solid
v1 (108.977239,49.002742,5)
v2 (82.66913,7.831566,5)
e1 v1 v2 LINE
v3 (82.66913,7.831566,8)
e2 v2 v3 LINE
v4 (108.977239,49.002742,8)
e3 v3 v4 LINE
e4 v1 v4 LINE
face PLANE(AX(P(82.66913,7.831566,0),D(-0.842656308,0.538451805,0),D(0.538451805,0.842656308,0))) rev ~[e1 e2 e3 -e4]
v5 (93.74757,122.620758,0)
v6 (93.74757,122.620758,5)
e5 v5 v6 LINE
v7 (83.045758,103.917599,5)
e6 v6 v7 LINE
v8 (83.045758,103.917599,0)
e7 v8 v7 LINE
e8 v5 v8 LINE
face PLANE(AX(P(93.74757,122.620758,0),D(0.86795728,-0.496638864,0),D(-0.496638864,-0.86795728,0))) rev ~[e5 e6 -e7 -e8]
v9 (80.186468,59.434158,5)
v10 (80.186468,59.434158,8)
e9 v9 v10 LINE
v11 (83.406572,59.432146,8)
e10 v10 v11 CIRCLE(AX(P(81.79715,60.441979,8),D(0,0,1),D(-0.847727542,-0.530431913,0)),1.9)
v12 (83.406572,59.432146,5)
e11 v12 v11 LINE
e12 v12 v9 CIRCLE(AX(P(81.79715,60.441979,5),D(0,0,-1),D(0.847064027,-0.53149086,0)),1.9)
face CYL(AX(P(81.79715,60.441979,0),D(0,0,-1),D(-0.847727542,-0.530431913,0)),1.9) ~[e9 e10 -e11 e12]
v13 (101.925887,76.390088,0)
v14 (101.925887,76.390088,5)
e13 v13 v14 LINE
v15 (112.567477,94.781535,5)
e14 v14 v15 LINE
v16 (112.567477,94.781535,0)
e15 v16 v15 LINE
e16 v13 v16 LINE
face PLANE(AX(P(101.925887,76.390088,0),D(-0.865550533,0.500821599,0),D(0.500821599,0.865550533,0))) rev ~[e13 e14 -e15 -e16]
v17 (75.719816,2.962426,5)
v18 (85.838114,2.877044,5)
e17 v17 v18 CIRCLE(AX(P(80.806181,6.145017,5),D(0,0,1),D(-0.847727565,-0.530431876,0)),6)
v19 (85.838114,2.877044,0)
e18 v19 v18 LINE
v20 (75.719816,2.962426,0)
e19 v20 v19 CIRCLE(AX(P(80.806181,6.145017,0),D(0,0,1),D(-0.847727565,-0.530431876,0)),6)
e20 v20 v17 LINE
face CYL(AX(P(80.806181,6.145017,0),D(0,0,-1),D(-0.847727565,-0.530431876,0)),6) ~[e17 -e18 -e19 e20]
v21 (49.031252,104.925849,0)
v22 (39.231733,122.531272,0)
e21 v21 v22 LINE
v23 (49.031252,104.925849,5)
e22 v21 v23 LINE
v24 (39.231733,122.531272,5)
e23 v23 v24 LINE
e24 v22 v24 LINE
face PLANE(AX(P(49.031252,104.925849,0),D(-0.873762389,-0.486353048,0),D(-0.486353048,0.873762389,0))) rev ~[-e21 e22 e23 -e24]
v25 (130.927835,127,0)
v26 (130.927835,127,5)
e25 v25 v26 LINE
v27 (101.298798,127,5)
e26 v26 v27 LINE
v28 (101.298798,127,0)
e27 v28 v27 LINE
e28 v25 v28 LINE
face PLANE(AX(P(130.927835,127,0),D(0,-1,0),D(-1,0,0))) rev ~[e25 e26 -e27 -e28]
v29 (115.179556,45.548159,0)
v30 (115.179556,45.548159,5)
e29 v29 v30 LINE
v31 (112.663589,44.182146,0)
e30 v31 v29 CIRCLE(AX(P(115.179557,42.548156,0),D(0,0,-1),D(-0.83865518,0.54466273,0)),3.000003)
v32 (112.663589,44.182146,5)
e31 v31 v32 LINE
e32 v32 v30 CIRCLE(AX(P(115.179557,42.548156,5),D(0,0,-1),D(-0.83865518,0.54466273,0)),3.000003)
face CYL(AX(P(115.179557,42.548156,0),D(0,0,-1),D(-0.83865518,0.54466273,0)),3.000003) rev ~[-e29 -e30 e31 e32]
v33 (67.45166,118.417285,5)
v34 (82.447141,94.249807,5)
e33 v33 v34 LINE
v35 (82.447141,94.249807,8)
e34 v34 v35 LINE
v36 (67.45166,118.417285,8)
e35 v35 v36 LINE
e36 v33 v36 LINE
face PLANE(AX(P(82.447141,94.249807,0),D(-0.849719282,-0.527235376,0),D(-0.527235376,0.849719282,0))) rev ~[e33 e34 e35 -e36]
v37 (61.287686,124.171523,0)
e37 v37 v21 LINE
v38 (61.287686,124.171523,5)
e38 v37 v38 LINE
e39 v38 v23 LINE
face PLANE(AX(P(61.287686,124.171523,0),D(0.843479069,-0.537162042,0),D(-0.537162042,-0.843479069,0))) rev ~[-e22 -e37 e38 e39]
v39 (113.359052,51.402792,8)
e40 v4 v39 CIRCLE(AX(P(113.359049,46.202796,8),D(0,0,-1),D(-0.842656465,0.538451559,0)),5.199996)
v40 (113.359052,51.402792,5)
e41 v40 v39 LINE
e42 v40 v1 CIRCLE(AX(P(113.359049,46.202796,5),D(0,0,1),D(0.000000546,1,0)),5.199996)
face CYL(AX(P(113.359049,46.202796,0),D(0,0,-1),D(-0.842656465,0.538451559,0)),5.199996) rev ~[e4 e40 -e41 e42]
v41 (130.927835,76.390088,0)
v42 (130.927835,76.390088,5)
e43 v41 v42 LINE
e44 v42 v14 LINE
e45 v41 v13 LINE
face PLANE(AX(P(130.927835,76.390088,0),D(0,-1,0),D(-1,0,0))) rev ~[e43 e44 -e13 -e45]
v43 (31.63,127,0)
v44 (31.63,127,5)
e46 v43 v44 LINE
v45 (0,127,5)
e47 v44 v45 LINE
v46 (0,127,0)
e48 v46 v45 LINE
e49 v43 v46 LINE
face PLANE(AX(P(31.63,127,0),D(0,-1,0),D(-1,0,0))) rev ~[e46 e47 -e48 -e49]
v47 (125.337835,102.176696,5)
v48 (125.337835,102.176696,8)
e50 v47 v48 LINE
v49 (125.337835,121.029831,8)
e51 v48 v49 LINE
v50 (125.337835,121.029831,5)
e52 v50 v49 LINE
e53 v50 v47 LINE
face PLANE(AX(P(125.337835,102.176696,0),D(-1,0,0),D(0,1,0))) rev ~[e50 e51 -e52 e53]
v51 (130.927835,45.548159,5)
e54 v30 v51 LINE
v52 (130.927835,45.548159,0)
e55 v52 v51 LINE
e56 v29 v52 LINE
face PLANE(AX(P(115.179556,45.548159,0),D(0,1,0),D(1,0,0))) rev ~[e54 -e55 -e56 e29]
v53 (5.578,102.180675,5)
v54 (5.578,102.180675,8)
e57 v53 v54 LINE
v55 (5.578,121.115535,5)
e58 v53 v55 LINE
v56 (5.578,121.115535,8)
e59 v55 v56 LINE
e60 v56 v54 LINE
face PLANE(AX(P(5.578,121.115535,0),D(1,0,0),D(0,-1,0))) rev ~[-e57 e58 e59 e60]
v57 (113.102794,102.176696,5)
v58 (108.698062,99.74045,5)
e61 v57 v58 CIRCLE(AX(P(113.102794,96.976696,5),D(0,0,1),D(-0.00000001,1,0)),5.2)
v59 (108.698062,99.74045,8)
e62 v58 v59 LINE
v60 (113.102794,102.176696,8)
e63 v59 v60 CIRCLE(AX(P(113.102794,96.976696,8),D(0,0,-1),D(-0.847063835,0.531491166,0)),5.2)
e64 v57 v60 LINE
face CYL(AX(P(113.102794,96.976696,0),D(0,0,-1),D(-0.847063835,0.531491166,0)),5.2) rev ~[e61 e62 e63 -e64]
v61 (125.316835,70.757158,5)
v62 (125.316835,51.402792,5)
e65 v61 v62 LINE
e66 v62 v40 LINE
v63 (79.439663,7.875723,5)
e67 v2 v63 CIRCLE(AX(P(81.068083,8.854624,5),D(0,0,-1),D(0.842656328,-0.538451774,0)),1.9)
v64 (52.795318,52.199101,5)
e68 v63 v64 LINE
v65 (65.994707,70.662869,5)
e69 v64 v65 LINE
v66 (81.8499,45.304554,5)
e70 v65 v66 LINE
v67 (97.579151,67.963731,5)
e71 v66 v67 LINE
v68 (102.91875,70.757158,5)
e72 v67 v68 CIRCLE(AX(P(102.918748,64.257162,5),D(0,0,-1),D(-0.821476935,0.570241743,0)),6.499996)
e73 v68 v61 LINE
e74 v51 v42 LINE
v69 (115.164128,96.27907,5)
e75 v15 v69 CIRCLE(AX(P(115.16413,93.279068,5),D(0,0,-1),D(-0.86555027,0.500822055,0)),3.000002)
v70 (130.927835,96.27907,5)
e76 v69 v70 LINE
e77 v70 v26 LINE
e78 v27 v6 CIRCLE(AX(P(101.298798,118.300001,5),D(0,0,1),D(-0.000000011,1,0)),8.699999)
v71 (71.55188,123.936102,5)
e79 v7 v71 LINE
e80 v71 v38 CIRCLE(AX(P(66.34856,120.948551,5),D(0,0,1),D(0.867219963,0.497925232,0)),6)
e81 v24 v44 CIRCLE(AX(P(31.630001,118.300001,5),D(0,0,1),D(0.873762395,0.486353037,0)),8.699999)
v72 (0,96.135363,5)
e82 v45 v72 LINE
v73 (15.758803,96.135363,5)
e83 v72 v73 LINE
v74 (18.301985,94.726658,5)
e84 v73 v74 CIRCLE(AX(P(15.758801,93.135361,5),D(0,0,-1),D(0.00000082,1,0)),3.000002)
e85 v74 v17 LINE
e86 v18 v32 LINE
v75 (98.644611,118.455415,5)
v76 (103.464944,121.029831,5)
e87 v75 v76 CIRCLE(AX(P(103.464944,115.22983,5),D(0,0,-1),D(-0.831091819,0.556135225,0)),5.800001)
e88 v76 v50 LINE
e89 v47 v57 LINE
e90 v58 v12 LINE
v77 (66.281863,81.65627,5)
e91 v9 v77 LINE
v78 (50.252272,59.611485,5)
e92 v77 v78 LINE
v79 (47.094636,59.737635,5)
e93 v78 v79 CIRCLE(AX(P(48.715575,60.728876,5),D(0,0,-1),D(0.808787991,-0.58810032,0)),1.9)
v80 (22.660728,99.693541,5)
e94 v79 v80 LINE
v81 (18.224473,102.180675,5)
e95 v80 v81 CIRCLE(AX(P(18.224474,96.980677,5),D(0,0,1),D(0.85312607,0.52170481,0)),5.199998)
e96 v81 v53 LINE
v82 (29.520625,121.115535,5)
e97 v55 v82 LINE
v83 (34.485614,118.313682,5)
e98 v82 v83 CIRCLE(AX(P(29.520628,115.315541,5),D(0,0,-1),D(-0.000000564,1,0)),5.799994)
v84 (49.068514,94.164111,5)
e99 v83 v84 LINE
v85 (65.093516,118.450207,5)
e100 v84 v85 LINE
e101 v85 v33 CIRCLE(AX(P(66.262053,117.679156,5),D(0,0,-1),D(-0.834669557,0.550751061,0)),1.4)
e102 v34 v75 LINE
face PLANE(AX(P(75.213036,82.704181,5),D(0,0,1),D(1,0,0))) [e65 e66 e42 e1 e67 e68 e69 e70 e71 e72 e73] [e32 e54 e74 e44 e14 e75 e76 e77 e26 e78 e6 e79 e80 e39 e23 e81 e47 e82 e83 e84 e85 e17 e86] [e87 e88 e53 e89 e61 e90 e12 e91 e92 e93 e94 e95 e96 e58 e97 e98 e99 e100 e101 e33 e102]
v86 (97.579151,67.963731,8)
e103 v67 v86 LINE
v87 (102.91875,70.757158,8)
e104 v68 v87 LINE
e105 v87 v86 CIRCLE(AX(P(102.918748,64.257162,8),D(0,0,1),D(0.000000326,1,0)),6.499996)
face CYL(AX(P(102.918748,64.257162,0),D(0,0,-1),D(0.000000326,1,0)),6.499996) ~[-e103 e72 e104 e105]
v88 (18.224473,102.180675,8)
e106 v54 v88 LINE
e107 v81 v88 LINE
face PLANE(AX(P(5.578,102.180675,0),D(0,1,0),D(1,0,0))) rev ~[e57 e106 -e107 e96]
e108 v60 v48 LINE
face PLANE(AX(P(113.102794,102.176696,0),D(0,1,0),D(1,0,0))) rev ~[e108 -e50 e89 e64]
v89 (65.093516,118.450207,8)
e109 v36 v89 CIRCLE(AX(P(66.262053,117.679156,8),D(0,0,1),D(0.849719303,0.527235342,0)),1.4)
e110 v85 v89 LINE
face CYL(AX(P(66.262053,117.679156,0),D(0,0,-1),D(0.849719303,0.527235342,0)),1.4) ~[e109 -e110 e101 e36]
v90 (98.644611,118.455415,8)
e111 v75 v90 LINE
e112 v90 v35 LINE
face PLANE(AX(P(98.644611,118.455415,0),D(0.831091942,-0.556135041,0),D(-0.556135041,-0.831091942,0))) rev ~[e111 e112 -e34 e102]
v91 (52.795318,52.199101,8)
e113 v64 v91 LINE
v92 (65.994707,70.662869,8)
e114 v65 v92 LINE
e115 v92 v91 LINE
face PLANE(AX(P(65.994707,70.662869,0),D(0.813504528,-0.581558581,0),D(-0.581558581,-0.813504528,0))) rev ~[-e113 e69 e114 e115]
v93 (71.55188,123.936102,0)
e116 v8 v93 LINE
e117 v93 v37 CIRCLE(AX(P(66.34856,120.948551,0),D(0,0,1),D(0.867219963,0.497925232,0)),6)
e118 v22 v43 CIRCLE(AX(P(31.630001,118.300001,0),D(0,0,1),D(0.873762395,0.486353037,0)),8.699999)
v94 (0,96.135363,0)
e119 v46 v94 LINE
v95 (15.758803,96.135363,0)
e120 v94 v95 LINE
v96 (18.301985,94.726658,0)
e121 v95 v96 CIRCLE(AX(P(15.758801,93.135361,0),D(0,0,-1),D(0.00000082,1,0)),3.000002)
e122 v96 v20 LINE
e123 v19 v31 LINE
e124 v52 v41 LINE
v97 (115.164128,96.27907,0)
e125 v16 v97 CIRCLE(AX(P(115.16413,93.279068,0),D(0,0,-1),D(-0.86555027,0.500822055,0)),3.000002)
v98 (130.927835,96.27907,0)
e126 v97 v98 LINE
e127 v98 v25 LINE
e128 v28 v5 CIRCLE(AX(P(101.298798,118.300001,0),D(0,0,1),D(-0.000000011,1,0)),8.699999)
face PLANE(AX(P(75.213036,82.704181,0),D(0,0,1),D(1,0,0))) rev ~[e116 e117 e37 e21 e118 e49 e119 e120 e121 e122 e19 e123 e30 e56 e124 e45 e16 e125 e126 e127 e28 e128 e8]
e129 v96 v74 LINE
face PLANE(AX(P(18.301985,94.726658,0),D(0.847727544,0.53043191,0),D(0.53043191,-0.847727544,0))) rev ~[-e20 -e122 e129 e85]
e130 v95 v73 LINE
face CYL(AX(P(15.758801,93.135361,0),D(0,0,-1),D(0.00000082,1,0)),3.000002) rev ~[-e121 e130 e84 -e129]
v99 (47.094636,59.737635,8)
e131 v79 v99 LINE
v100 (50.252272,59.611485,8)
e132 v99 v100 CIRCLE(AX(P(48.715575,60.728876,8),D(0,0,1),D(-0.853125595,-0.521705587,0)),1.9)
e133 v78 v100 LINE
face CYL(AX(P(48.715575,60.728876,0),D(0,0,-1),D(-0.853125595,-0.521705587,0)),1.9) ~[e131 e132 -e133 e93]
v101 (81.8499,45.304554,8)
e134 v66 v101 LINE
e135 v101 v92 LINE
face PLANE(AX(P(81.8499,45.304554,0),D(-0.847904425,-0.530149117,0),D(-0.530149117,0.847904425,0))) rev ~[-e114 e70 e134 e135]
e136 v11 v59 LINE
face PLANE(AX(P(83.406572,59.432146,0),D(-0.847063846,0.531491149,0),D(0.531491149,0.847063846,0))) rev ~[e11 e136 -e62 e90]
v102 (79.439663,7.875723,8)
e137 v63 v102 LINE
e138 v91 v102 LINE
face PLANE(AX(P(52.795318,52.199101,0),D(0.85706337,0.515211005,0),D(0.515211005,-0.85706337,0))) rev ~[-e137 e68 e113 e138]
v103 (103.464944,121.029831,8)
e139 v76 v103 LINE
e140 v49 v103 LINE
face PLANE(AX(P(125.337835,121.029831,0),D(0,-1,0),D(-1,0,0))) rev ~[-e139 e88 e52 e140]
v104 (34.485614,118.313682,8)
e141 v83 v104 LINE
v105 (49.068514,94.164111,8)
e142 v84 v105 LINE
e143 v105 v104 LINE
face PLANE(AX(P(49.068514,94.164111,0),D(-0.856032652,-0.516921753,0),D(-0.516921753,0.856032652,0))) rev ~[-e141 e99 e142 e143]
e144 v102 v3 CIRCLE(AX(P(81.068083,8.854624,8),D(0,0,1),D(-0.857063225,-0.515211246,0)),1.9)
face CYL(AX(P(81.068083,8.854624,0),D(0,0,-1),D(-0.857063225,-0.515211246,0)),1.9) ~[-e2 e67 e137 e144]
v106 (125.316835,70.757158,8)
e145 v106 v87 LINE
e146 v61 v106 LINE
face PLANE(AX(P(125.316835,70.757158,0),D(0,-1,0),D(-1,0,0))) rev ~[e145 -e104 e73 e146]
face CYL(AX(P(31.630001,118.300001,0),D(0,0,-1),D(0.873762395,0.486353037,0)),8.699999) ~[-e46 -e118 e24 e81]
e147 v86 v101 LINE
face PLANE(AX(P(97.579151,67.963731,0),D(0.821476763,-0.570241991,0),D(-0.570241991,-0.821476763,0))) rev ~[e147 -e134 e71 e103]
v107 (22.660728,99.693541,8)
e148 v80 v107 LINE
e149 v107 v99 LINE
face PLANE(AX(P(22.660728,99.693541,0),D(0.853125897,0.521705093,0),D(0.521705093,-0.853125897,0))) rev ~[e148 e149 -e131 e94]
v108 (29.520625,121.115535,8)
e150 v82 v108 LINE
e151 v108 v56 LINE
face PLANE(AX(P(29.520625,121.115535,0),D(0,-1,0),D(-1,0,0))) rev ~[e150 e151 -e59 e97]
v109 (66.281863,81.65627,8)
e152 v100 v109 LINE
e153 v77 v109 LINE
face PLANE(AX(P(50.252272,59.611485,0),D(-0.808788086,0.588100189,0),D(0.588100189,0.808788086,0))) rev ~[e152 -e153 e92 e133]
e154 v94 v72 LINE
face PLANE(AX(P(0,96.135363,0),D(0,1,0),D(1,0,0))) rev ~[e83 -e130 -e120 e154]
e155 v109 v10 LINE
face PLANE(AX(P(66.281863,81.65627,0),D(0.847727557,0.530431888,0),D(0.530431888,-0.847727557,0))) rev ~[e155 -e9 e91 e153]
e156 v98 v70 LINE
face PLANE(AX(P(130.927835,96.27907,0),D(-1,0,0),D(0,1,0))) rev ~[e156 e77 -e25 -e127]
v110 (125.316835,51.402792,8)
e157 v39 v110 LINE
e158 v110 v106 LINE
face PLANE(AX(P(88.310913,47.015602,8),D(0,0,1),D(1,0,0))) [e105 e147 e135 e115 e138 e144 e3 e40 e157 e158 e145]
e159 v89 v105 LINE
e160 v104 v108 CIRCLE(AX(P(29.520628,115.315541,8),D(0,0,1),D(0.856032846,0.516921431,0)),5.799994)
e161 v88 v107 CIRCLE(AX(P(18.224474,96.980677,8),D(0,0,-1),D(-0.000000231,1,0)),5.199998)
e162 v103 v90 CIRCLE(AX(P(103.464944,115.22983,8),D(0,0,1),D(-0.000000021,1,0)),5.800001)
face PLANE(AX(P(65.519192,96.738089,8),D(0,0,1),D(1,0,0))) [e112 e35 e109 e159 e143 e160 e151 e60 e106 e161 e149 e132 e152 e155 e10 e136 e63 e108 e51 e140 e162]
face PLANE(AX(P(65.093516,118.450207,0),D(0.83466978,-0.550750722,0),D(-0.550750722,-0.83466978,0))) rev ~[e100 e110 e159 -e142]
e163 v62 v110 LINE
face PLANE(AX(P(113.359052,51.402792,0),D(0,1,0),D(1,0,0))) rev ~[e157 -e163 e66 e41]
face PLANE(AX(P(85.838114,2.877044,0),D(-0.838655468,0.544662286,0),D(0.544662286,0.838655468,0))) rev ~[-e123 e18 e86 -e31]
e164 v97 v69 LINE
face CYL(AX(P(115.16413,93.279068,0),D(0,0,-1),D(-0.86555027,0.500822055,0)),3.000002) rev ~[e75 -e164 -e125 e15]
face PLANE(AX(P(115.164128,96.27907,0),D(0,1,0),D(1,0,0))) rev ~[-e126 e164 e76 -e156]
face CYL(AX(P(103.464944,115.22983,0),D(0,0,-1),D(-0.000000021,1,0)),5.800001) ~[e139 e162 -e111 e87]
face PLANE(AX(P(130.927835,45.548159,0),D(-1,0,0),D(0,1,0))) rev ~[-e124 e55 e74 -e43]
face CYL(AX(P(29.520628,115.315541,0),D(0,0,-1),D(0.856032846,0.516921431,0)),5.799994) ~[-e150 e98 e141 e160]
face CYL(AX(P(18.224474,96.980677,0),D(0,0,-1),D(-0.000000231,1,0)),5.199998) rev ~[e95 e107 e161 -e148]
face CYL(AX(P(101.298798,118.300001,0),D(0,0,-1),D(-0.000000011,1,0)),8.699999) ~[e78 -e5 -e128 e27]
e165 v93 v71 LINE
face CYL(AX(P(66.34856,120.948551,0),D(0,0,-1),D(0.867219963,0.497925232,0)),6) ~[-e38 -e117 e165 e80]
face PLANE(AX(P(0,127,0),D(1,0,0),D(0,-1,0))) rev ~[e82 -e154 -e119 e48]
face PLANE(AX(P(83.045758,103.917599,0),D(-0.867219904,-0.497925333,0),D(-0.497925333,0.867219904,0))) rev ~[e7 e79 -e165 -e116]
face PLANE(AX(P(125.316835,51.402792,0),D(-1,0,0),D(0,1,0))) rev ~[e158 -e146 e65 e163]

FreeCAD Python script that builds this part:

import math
import FreeCAD as App
import Part
import Sketcher
from FreeCAD import Vector

doc = App.newDocument("Part")
params = doc.addObject("Spreadsheet::Sheet", "Params")
for row, (alias, value) in enumerate([
    ("sketch1_radius", "6 mm"),
    ("sketch1_radius2", "6 mm"),
    ("sketch1_radius3", "8.699999 mm"),
    ("sketch1_radius4", "8.699999 mm"),
    ("sketch1_radius5", "1.9 mm"),
    ("pad1_length", "5 mm"),
    ("sketch2_radius", "1.9 mm"),
    ("sketch2_radius2", "1.9 mm"),
    ("sketch2_radius3", "5.2 mm"),
    ("sketch2_radius4", "5.800001 mm"),
    ("sketch2_radius5", "1.4 mm"),
    ("pad2_length", "8 mm"),
], start=1):
    params.set(f"A{row}", alias)
    params.set(f"B{row}", "=" + value)
    params.setAlias(f"B{row}", alias)

body = doc.addObject("PartDesign::Body", "Body")

sketch1 = body.newObject("Sketcher::SketchObject", "Sketch")
sketch1.AttachmentSupport = (doc.getObject("XY_Plane"), [""])
sketch1.MapMode = "FlatFace"
sketch1.addGeometry(Part.LineSegment(Vector(130.927835, 96.27907, 0), Vector(130.927835, 127, 0)), False)
sketch1.addGeometry(Part.LineSegment(Vector(130.927835, 127, 0), Vector(101.298798, 127, 0)), False)
sketch1.addGeometry(Part.ArcOfCircle(Part.Circle(Vector(101.298798, 118.300001, 0), Vector(0, 0, 1), 8.699999), math.radians(90.000001), math.radians(150.222126)), False)
sketch1.addGeometry(Part.LineSegment(Vector(93.74757, 122.620758, 0), Vector(83.045758, 103.917599, 0)), False)
sketch1.addGeometry(Part.LineSegment(Vector(83.045758, 103.917599, 0), Vector(71.55188, 123.936102, 0)), False)
sketch1.addGeometry(Part.ArcOfCircle(Part.Circle(Vector(66.34856, 120.948551, 0), Vector(0, 0, 1), 6), math.radians(29.862829), math.radians(147.509343)), False)
sketch1.addGeometry(Part.LineSegment(Vector(61.287686, 124.171523, 0), Vector(49.031252, 104.925849, 0)), False)
sketch1.addGeometry(Part.LineSegment(Vector(49.031252, 104.925849, 0), Vector(39.231733, 122.531272, 0)), False)
sketch1.addGeometry(Part.ArcOfCircle(Part.Circle(Vector(31.630001, 118.300001, 0), Vector(0, 0, 1), 8.699999), math.radians(29.101158), math.radians(90.000008)), False)
sketch1.addGeometry(Part.LineSegment(Vector(31.63, 127, 0), Vector(0, 127, 0)), False)
sketch1.addGeometry(Part.LineSegment(Vector(0, 127, 0), Vector(0, 96.135363, 0)), False)
sketch1.addGeometry(Part.LineSegment(Vector(0, 96.135363, 0), Vector(15.758803, 96.135363, 0)), False)
sketch1.addGeometry(Part.ArcOfCircle(Part.Circle(Vector(15.758801, 93.135361, 0), Vector(0, 0, 1), 3.000002), math.radians(32.034652), math.radians(89.999953)), False)
sketch1.addGeometry(Part.LineSegment(Vector(18.301985, 94.726658, 0), Vector(75.719816, 2.962426, 0)), False)
sketch1.addGeometry(Part.ArcOfCircle(Part.Circle(Vector(80.806181, 6.145017, 0), Vector(0, 0, 1), 6), math.radians(-147.96536), math.radians(-33.001583)), False)
sketch1.addGeometry(Part.LineSegment(Vector(85.838114, 2.877044, 0), Vector(112.663589, 44.182146, 0)), False)
sketch1.addGeometry(Part.ArcOfCircle(Part.Circle(Vector(115.179557, 42.548156, 0), Vector(0, 0, 1), 3.000003), math.radians(90.000014), math.radians(146.998381)), False)
sketch1.addGeometry(Part.LineSegment(Vector(115.179556, 45.548159, 0), Vector(130.927835, 45.548159, 0)), False)
sketch1.addGeometry(Part.LineSegment(Vector(130.927835, 45.548159, 0), Vector(130.927835, 76.390088, 0)), False)
sketch1.addGeometry(Part.LineSegment(Vector(130.927835, 76.390088, 0), Vector(101.925887, 76.390088, 0)), False)
sketch1.addGeometry(Part.LineSegment(Vector(101.925887, 76.390088, 0), Vector(112.567477, 94.781535, 0)), False)
sketch1.addGeometry(Part.ArcOfCircle(Part.Circle(Vector(115.16413, 93.279068, 0), Vector(0, 0, 1), 3.000002), math.radians(90.000035), math.radians(149.945598)), False)
sketch1.addGeometry(Part.LineSegment(Vector(115.164128, 96.27907, 0), Vector(130.927835, 96.27907, 0)), False)
sketch1.addGeometry(Part.LineSegment(Vector(102.91875, 70.757158, 0), Vector(125.316835, 70.757158, 0)), False)
sketch1.addGeometry(Part.LineSegment(Vector(125.316835, 70.757158, 0), Vector(125.316835, 51.402792, 0)), False)
sketch1.addGeometry(Part.LineSegment(Vector(125.316835, 51.402792, 0), Vector(113.359052, 51.402792, 0)), False)
sketch1.addGeometry(Part.ArcOfCircle(Part.Circle(Vector(113.359049, 46.202796, 0), Vector(0, 0, 1), 5.199996), math.radians(89.999969), math.radians(147.421708)), False)
sketch1.addGeometry(Part.LineSegment(Vector(108.977239, 49.002742, 0), Vector(82.66913, 7.831566, 0)), False)
sketch1.addGeometry(Part.ArcOfCircle(Part.Circle(Vector(81.068083, 8.854624, 0), Vector(0, 0, 1), 1.9), math.radians(-148.988424), math.radians(-32.578306)), False)
sketch1.addGeometry(Part.LineSegment(Vector(79.439663, 7.875723, 0), Vector(52.795318, 52.199101, 0)), False)
sketch1.addGeometry(Part.LineSegment(Vector(52.795318, 52.199101, 0), Vector(65.994707, 70.662869, 0)), False)
sketch1.addGeometry(Part.LineSegment(Vector(65.994707, 70.662869, 0), Vector(81.8499, 45.304554, 0)), False)
sketch1.addGeometry(Part.LineSegment(Vector(81.8499, 45.304554, 0), Vector(97.579151, 67.963731, 0)), False)
sketch1.addGeometry(Part.ArcOfCircle(Part.Circle(Vector(102.918748, 64.257162, 0), Vector(0, 0, 1), 6.499996), math.radians(89.999981), math.radians(145.232915)), False)
sketch1.addGeometry(Part.LineSegment(Vector(18.224473, 102.180675, 0), Vector(5.578, 102.180675, 0)), False)
sketch1.addGeometry(Part.LineSegment(Vector(5.578, 102.180675, 0), Vector(5.578, 121.115535, 0)), False)
sketch1.addGeometry(Part.LineSegment(Vector(5.578, 121.115535, 0), Vector(29.520625, 121.115535, 0)), False)
sketch1.addGeometry(Part.ArcOfCircle(Part.Circle(Vector(29.520628, 115.315541, 0), Vector(0, 0, 1), 5.799994), math.radians(31.125973), math.radians(90.000032)), False)
sketch1.addGeometry(Part.LineSegment(Vector(34.485614, 118.313682, 0), Vector(49.068514, 94.164111, 0)), False)
sketch1.addGeometry(Part.LineSegment(Vector(49.068514, 94.164111, 0), Vector(65.093516, 118.450207, 0)), False)
sketch1.addGeometry(Part.ArcOfCircle(Part.Circle(Vector(66.262053, 117.679156, 0), Vector(0, 0, 1), 1.4), math.radians(31.818848), math.radians(146.581446)), False)
sketch1.addGeometry(Part.LineSegment(Vector(67.45166, 118.417285, 0), Vector(82.447141, 94.249807, 0)), False)
sketch1.addGeometry(Part.LineSegment(Vector(82.447141, 94.249807, 0), Vector(98.644611, 118.455415, 0)), False)
sketch1.addGeometry(Part.ArcOfCircle(Part.Circle(Vector(103.464944, 115.22983, 0), Vector(0, 0, 1), 5.800001), math.radians(90.000001), math.radians(146.211058)), False)
sketch1.addGeometry(Part.LineSegment(Vector(103.464944, 121.029831, 0), Vector(125.337835, 121.029831, 0)), False)
sketch1.addGeometry(Part.LineSegment(Vector(125.337835, 121.029831, 0), Vector(125.337835, 102.176696, 0)), False)
sketch1.addGeometry(Part.LineSegment(Vector(125.337835, 102.176696, 0), Vector(113.102794, 102.176696, 0)), False)
sketch1.addGeometry(Part.ArcOfCircle(Part.Circle(Vector(113.102794, 96.976696, 0), Vector(0, 0, 1), 5.2), math.radians(90.000001), math.radians(147.893738)), False)
sketch1.addGeometry(Part.LineSegment(Vector(108.698062, 99.74045, 0), Vector(83.406572, 59.432146, 0)), False)
sketch1.addGeometry(Part.ArcOfCircle(Part.Circle(Vector(81.79715, 60.441979, 0), Vector(0, 0, 1), 1.9), math.radians(-147.965358), math.radians(-32.106242)), False)
sketch1.addGeometry(Part.LineSegment(Vector(80.186468, 59.434158, 0), Vector(66.281863, 81.65627, 0)), False)
sketch1.addGeometry(Part.LineSegment(Vector(66.281863, 81.65627, 0), Vector(50.252272, 59.611485, 0)), False)
sketch1.addGeometry(Part.ArcOfCircle(Part.Circle(Vector(48.715575, 60.728876, 0), Vector(0, 0, 1), 1.9), math.radians(-148.553271), math.radians(-36.022317)), False)
sketch1.addGeometry(Part.LineSegment(Vector(47.094636, 59.737635, 0), Vector(22.660728, 99.693541, 0)), False)
sketch1.addGeometry(Part.ArcOfCircle(Part.Circle(Vector(18.224474, 96.980677, 0), Vector(0, 0, 1), 5.199998), math.radians(31.446676), math.radians(90.000013)), False)
sketch1.addConstraint(Sketcher.Constraint("Coincident", 0, 2, 1, 1))
sketch1.addConstraint(Sketcher.Constraint("Coincident", 1, 2, 2, 1))
sketch1.addConstraint(Sketcher.Constraint("Coincident", 2, 2, 3, 1))
sketch1.addConstraint(Sketcher.Constraint("Coincident", 3, 2, 4, 1))
sketch1.addConstraint(Sketcher.Constraint("Coincident", 4, 2, 5, 1))
sketch1.addConstraint(Sketcher.Constraint("Coincident", 5, 2, 6, 1))
sketch1.addConstraint(Sketcher.Constraint("Coincident", 6, 2, 7, 1))
sketch1.addConstraint(Sketcher.Constraint("Coincident", 7, 2, 8, 1))
sketch1.addConstraint(Sketcher.Constraint("Coincident", 8, 2, 9, 1))
sketch1.addConstraint(Sketcher.Constraint("Coincident", 9, 2, 10, 1))
sketch1.addConstraint(Sketcher.Constraint("Coincident", 10, 2, 11, 1))
sketch1.addConstraint(Sketcher.Constraint("Coincident", 11, 2, 12, 2))
sketch1.addConstraint(Sketcher.Constraint("Coincident", 12, 1, 13, 1))
sketch1.addConstraint(Sketcher.Constraint("Coincident", 13, 2, 14, 1))
sketch1.addConstraint(Sketcher.Constraint("Coincident", 14, 2, 15, 1))
sketch1.addConstraint(Sketcher.Constraint("Coincident", 15, 2, 16, 2))
sketch1.addConstraint(Sketcher.Constraint("Coincident", 16, 1, 17, 1))
sketch1.addConstraint(Sketcher.Constraint("Coincident", 17, 2, 18, 1))
sketch1.addConstraint(Sketcher.Constraint("Coincident", 18, 2, 19, 1))
sketch1.addConstraint(Sketcher.Constraint("Coincident", 19, 2, 20, 1))
sketch1.addConstraint(Sketcher.Constraint("Coincident", 20, 2, 21, 2))
sketch1.addConstraint(Sketcher.Constraint("Coincident", 21, 1, 22, 1))
sketch1.addConstraint(Sketcher.Constraint("Coincident", 22, 2, 0, 1))
sketch1.addConstraint(Sketcher.Constraint("Coincident", 23, 2, 24, 1))
sketch1.addConstraint(Sketcher.Constraint("Coincident", 24, 2, 25, 1))
sketch1.addConstraint(Sketcher.Constraint("Coincident", 25, 2, 26, 1))
sketch1.addConstraint(Sketcher.Constraint("Coincident", 26, 2, 27, 1))
sketch1.addConstraint(Sketcher.Constraint("Coincident", 27, 2, 28, 2))
sketch1.addConstraint(Sketcher.Constraint("Coincident", 28, 1, 29, 1))
sketch1.addConstraint(Sketcher.Constraint("Coincident", 29, 2, 30, 1))
sketch1.addConstraint(Sketcher.Constraint("Coincident", 30, 2, 31, 1))
sketch1.addConstraint(Sketcher.Constraint("Coincident", 31, 2, 32, 1))
sketch1.addConstraint(Sketcher.Constraint("Coincident", 32, 2, 33, 2))
sketch1.addConstraint(Sketcher.Constraint("Coincident", 33, 1, 23, 1))
sketch1.addConstraint(Sketcher.Constraint("Coincident", 34, 2, 35, 1))
sketch1.addConstraint(Sketcher.Constraint("Coincident", 35, 2, 36, 1))
sketch1.addConstraint(Sketcher.Constraint("Coincident", 36, 2, 37, 2))
sketch1.addConstraint(Sketcher.Constraint("Coincident", 37, 1, 38, 1))
sketch1.addConstraint(Sketcher.Constraint("Coincident", 38, 2, 39, 1))
sketch1.addConstraint(Sketcher.Constraint("Coincident", 39, 2, 40, 2))
sketch1.addConstraint(Sketcher.Constraint("Coincident", 40, 1, 41, 1))
sketch1.addConstraint(Sketcher.Constraint("Coincident", 41, 2, 42, 1))
sketch1.addConstraint(Sketcher.Constraint("Coincident", 42, 2, 43, 2))
sketch1.addConstraint(Sketcher.Constraint("Coincident", 43, 1, 44, 1))
sketch1.addConstraint(Sketcher.Constraint("Coincident", 44, 2, 45, 1))
sketch1.addConstraint(Sketcher.Constraint("Coincident", 45, 2, 46, 1))
sketch1.addConstraint(Sketcher.Constraint("Coincident", 46, 2, 47, 1))
sketch1.addConstraint(Sketcher.Constraint("Coincident", 47, 2, 48, 1))
sketch1.addConstraint(Sketcher.Constraint("Coincident", 48, 2, 49, 2))
sketch1.addConstraint(Sketcher.Constraint("Coincident", 49, 1, 50, 1))
sketch1.addConstraint(Sketcher.Constraint("Coincident", 50, 2, 51, 1))
sketch1.addConstraint(Sketcher.Constraint("Coincident", 51, 2, 52, 2))
sketch1.addConstraint(Sketcher.Constraint("Coincident", 52, 1, 53, 1))
sketch1.addConstraint(Sketcher.Constraint("Coincident", 53, 2, 54, 1))
sketch1.addConstraint(Sketcher.Constraint("Coincident", 54, 2, 34, 1))
sketch1.addConstraint(Sketcher.Constraint("Vertical", 0))
sketch1.addConstraint(Sketcher.Constraint("Horizontal", 1))
sketch1.addConstraint(Sketcher.Constraint("Horizontal", 9))
sketch1.addConstraint(Sketcher.Constraint("Vertical", 10))
sketch1.addConstraint(Sketcher.Constraint("Horizontal", 11))
sketch1.addConstraint(Sketcher.Constraint("Horizontal", 17))
sketch1.addConstraint(Sketcher.Constraint("Vertical", 18))
sketch1.addConstraint(Sketcher.Constraint("Horizontal", 19))
sketch1.addConstraint(Sketcher.Constraint("Horizontal", 22))
sketch1.addConstraint(Sketcher.Constraint("Horizontal", 23))
sketch1.addConstraint(Sketcher.Constraint("Vertical", 24))
sketch1.addConstraint(Sketcher.Constraint("Horizontal", 25))
sketch1.addConstraint(Sketcher.Constraint("Horizontal", 34))
sketch1.addConstraint(Sketcher.Constraint("Vertical", 35))
sketch1.addConstraint(Sketcher.Constraint("Horizontal", 36))
sketch1.addConstraint(Sketcher.Constraint("Horizontal", 44))
sketch1.addConstraint(Sketcher.Constraint("Vertical", 45))
sketch1.addConstraint(Sketcher.Constraint("Horizontal", 46))
sketch1.addConstraint(Sketcher.Constraint("PointOnObject", 9, 2, -2))
sketch1.addConstraint(Sketcher.Constraint("Radius", 5, 6.0))
sketch1.addConstraint(Sketcher.Constraint("Radius", 14, 6.0))
sketch1.addConstraint(Sketcher.Constraint("Radius", 2, 8.699999))
sketch1.addConstraint(Sketcher.Constraint("Radius", 8, 8.699999))
sketch1.addConstraint(Sketcher.Constraint("Radius", 28, 1.9))
sketch1.addConstraint(Sketcher.Constraint("Radius", 40, 1.4))
sketch1.addConstraint(Sketcher.Constraint("Radius", 43, 5.800001))
sketch1.addConstraint(Sketcher.Constraint("Radius", 47, 5.2))
sketch1.addConstraint(Sketcher.Constraint("Radius", 49, 1.9))
sketch1.addConstraint(Sketcher.Constraint("Radius", 52, 1.9))
sketch1.addConstraint(Sketcher.Constraint("DistanceY", -1, 1, 0, 2, 127.0))
sketch1.addConstraint(Sketcher.Constraint("DistanceY", -1, 1, 8, 2, 127.0))
sketch1.addConstraint(Sketcher.Constraint("DistanceX", 9, 2, 9, 1, 31.63))
sketch1.addConstraint(Sketcher.Constraint("DistanceX", -1, 1, 8, 3, 31.630001))
sketch1.addConstraint(Sketcher.Constraint("DistanceX", -1, 1, 34, 2, 5.578))
sketch1.addConstraint(Sketcher.Constraint("Radius", 12, 3.000002))
sketch1.addConstraint(Sketcher.Constraint("Radius", 16, 3.000003))
sketch1.addConstraint(Sketcher.Constraint("Radius", 21, 3.000002))
sketch1.addConstraint(Sketcher.Constraint("Radius", 26, 5.199996))
sketch1.addConstraint(Sketcher.Constraint("Radius", 33, 6.499996))
sketch1.addConstraint(Sketcher.Constraint("Radius", 37, 5.799994))
sketch1.addConstraint(Sketcher.Constraint("Radius", 54, 5.199998))
sketch1.addConstraint(Sketcher.Constraint("Distance", 27, 48.8588))
sketch1.addConstraint(Sketcher.Constraint("DistanceX", 17, 1, 17, 2, 15.748279))
sketch1.addConstraint(Sketcher.Constraint("DistanceX", 44, 1, 44, 2, 21.872891))
sketch1.addConstraint(Sketcher.Constraint("DistanceX", 46, 2, 46, 1, 12.235041))
sketch1.addConstraint(Sketcher.Constraint("DistanceY", 0, 1, 0, 2, 30.72093))
sketch1.addConstraint(Sketcher.Constraint("DistanceY", 18, 1, 18, 2, 30.841929))
sketch1.addConstraint(Sketcher.Constraint("DistanceY", 35, 1, 35, 2, 18.93486))
sketch1.addConstraint(Sketcher.Constraint("DistanceX", -1, 1, 2, 3, 101.298798))
sketch1.addConstraint(Sketcher.Constraint("DistanceX", -1, 1, 12, 3, 15.758801))
sketch1.addConstraint(Sketcher.Constraint("DistanceX", -1, 1, 1, 2, 101.298798))
sketch1.addConstraint(Sketcher.Constraint("DistanceY", -1, 1, 3, 2, 103.917599))
sketch1.addConstraint(Sketcher.Constraint("DistanceY", -1, 1, 29, 2, 52.199101))
sketch1.addConstraint(Sketcher.Constraint("DistanceX", -1, 1, 31, 2, 81.8499))
sketch1.addConstraint(Sketcher.Constraint("Distance", 3, 21.548479))
sketch1.addConstraint(Sketcher.Constraint("Distance", 38, 28.21104))
sketch1.addConstraint(Sketcher.Constraint("Distance", 39, 29.096652))
sketch1.addConstraint(Sketcher.Constraint("Distance", 41, 28.44172))
sketch1.addConstraint(Sketcher.Constraint("Distance", 48, 47.58591))
sketch1.addConstraint(Sketcher.Constraint("DistanceX", 1, 2, 1, 1, 29.629037))
sketch1.addConstraint(Sketcher.Constraint("DistanceX", 11, 1, 11, 2, 15.758803))
sketch1.addConstraint(Sketcher.Constraint("DistanceX", 19, 2, 19, 1, 29.001948))
sketch1.addConstraint(Sketcher.Constraint("DistanceX", 22, 1, 22, 2, 15.763707))
sketch1.addConstraint(Sketcher.Constraint("DistanceX", 23, 1, 23, 2, 22.398085))
sketch1.addConstraint(Sketcher.Constraint("DistanceX", 25, 2, 25, 1, 11.957783))
sketch1.addConstraint(Sketcher.Constraint("DistanceX", 34, 2, 34, 1, 12.646473))
sketch1.addConstraint(Sketcher.Constraint("DistanceX", 36, 1, 36, 2, 23.942625))
sketch1.addConstraint(Sketcher.Constraint("DistanceY", 10, 2, 10, 1, 30.864637))
sketch1.addConstraint(Sketcher.Constraint("DistanceY", 24, 2, 24, 1, 19.354366))
sketch1.addConstraint(Sketcher.Constraint("DistanceY", 45, 2, 45, 1, 18.853135))
sketch1.addConstraint(Sketcher.Constraint("DistanceX", -1, 1, 5, 3, 66.34856))
sketch1.addConstraint(Sketcher.Constraint("DistanceY", -1, 1, 5, 3, 120.948551))
sketch1.addConstraint(Sketcher.Constraint("DistanceX", -1, 1, 14, 3, 80.806181))
sketch1.addConstraint(Sketcher.Constraint("DistanceX", -1, 1, 21, 3, 115.16413))
sketch1.addConstraint(Sketcher.Constraint("DistanceX", -1, 1, 26, 3, 113.359049))
sketch1.addConstraint(Sketcher.Constraint("DistanceY", -1, 1, 33, 3, 64.257162))
sketch1.addConstraint(Sketcher.Constraint("DistanceX", -1, 1, 37, 3, 29.520628))
sketch1.addConstraint(Sketcher.Constraint("DistanceY", -1, 1, 37, 3, 115.315541))
sketch1.addConstraint(Sketcher.Constraint("DistanceY", -1, 1, 43, 3, 115.22983))
sketch1.addConstraint(Sketcher.Constraint("DistanceX", -1, 1, 49, 3, 81.79715))
sketch1.addConstraint(Sketcher.Constraint("DistanceY", -1, 1, 49, 3, 60.441979))
sketch1.addConstraint(Sketcher.Constraint("DistanceX", -1, 1, 2, 2, 93.74757))
sketch1.addConstraint(Sketcher.Constraint("DistanceX", -1, 1, 4, 2, 71.55188))
sketch1.addConstraint(Sketcher.Constraint("DistanceY", -1, 1, 6, 2, 104.925849))
sketch1.addConstraint(Sketcher.Constraint("DistanceY", -1, 1, 7, 2, 122.531272))
sketch1.addConstraint(Sketcher.Constraint("DistanceY", -1, 1, 12, 1, 94.726658))
sketch1.addConstraint(Sketcher.Constraint("DistanceX", -1, 1, 15, 2, 112.663589))
sketch1.addConstraint(Sketcher.Constraint("DistanceY", -1, 1, 16, 1, 45.548159))
sketch1.addConstraint(Sketcher.Constraint("DistanceX", -1, 1, 26, 2, 108.977239))
sketch1.addConstraint(Sketcher.Constraint("DistanceX", -1, 1, 27, 2, 82.66913))
sketch1.addConstraint(Sketcher.Constraint("DistanceX", -1, 1, 29, 2, 52.795318))
sketch1.addConstraint(Sketcher.Constraint("DistanceY", -1, 1, 30, 2, 70.662869))
sketch1.addConstraint(Sketcher.Constraint("DistanceX", -1, 1, 32, 2, 97.579151))
sketch1.addConstraint(Sketcher.Constraint("DistanceY", -1, 1, 32, 2, 67.963731))
sketch1.addConstraint(Sketcher.Constraint("DistanceX", -1, 1, 33, 1, 102.91875))
sketch1.addConstraint(Sketcher.Constraint("DistanceY", -1, 1, 38, 2, 94.164111))
sketch1.addConstraint(Sketcher.Constraint("DistanceX", -1, 1, 40, 1, 67.45166))
sketch1.addConstraint(Sketcher.Constraint("DistanceX", -1, 1, 41, 2, 82.447141))
sketch1.addConstraint(Sketcher.Constraint("DistanceX", -1, 1, 42, 2, 98.644611))
sketch1.addConstraint(Sketcher.Constraint("DistanceY", -1, 1, 47, 2, 99.74045))
sketch1.addConstraint(Sketcher.Constraint("DistanceX", -1, 1, 48, 2, 83.406572))
sketch1.addConstraint(Sketcher.Constraint("DistanceX", -1, 1, 49, 1, 80.186468))
sketch1.addConstraint(Sketcher.Constraint("DistanceY", -1, 1, 50, 2, 81.65627))
sketch1.addConstraint(Sketcher.Constraint("DistanceX", -1, 1, 51, 2, 50.252272))
sketch1.addConstraint(Sketcher.Constraint("DistanceY", -1, 1, 53, 2, 99.693541))
sketch1.addConstraint(Sketcher.Constraint("Distance", 6, 22.817014))
sketch1.addConstraint(Sketcher.Constraint("Distance", 7, 20.148982))
sketch1.addConstraint(Sketcher.Constraint("Distance", 13, 108.247317))
sketch1.addConstraint(Sketcher.Constraint("Distance", 15, 49.251574))
sketch1.addConstraint(Sketcher.Constraint("Distance", 20, 21.248265))
sketch1.addConstraint(Sketcher.Constraint("Distance", 29, 51.715403))
sketch1.addConstraint(Sketcher.Constraint("Distance", 30, 22.696577))
sketch1.addConstraint(Sketcher.Constraint("Distance", 31, 29.907044))
sketch1.addConstraint(Sketcher.Constraint("Distance", 42, 29.125066))
sketch1.addConstraint(Sketcher.Constraint("Distance", 50, 26.213743))
sketch1.addConstraint(Sketcher.Constraint("Distance", 51, 27.256565))
sketch1.addConstraint(Sketcher.Constraint("Distance", 53, 46.834712))
sketch1.addConstraint(Sketcher.Constraint("DistanceY", -1, 1, 14, 3, 6.145017))
sketch1.addConstraint(Sketcher.Constraint("DistanceX", -1, 1, 16, 3, 115.179557))
sketch1.addConstraint(Sketcher.Constraint("DistanceX", -1, 1, 28, 3, 81.068083))
sketch1.addConstraint(Sketcher.Constraint("DistanceX", -1, 1, 40, 3, 66.262053))
sketch1.addConstraint(Sketcher.Constraint("DistanceY", -1, 1, 40, 3, 117.679156))
sketch1.addConstraint(Sketcher.Constraint("DistanceX", -1, 1, 52, 3, 48.715575))
sketch1.addConstraint(Sketcher.Constraint("DistanceX", -1, 1, 54, 3, 18.224474))
sketch1.addConstraint(Sketcher.Constraint("DistanceX", -1, 1, 16, 1, 115.179556))
sketch1.addConstraint(Sketcher.Constraint("DistanceX", -1, 1, 37, 1, 34.485614))
sketch1.addConstraint(Sketcher.Constraint("DistanceX", -1, 1, 43, 1, 103.464944))
sketch1.setExpression("Constraints[74]", "Params.sketch1_radius")
sketch1.setExpression("Constraints[75]", "Params.sketch1_radius2")
sketch1.setExpression("Constraints[76]", "Params.sketch1_radius3")
sketch1.setExpression("Constraints[77]", "Params.sketch1_radius4")
sketch1.setExpression("Constraints[78]", "Params.sketch1_radius5")
pad1 = body.newObject("PartDesign::Pad", "Pad")
pad1.Profile = sketch1
pad1.setExpression("Length", "Params.pad1_length")

sketch2 = body.newObject("Sketcher::SketchObject", "Sketch001")
sketch2.AttachmentSupport = (doc.getObject("XY_Plane"), [""])
sketch2.MapMode = "FlatFace"
sketch2.addGeometry(Part.LineSegment(Vector(29.520625, 121.115535, 0), Vector(5.578, 121.115535, 0)), False)
sketch2.addGeometry(Part.LineSegment(Vector(5.578, 121.115535, 0), Vector(5.578, 102.180675, 0)), False)
sketch2.addGeometry(Part.LineSegment(Vector(5.578, 102.180675, 0), Vector(18.224473, 102.180675, 0)), False)
sketch2.addGeometry(Part.ArcOfCircle(Part.Circle(Vector(18.224474, 96.980677, 0), Vector(0, 0, 1), 5.199998), math.radians(31.446676), math.radians(90.000013)), False)
sketch2.addGeometry(Part.LineSegment(Vector(22.660728, 99.693541, 0), Vector(47.094636, 59.737635, 0)), False)
sketch2.addGeometry(Part.ArcOfCircle(Part.Circle(Vector(48.715575, 60.728876, 0), Vector(0, 0, 1), 1.9), math.radians(-148.553271), math.radians(-36.022317)), False)
sketch2.addGeometry(Part.LineSegment(Vector(50.252272, 59.611485, 0), Vector(66.281863, 81.65627, 0)), False)
sketch2.addGeometry(Part.LineSegment(Vector(66.281863, 81.65627, 0), Vector(80.186468, 59.434158, 0)), False)
sketch2.addGeometry(Part.ArcOfCircle(Part.Circle(Vector(81.79715, 60.441979, 0), Vector(0, 0, 1), 1.9), math.radians(-147.965358), math.radians(-32.106242)), False)
sketch2.addGeometry(Part.LineSegment(Vector(83.406572, 59.432146, 0), Vector(108.698062, 99.74045, 0)), False)
sketch2.addGeometry(Part.ArcOfCircle(Part.Circle(Vector(113.102794, 96.976696, 0), Vector(0, 0, 1), 5.2), math.radians(90.000001), math.radians(147.893738)), False)
sketch2.addGeometry(Part.LineSegment(Vector(113.102794, 102.176696, 0), Vector(125.337835, 102.176696, 0)), False)
sketch2.addGeometry(Part.LineSegment(Vector(125.337835, 102.176696, 0), Vector(125.337835, 121.029831, 0)), False)
sketch2.addGeometry(Part.LineSegment(Vector(125.337835, 121.029831, 0), Vector(103.464944, 121.029831, 0)), False)
sketch2.addGeometry(Part.ArcOfCircle(Part.Circle(Vector(103.464944, 115.22983, 0), Vector(0, 0, 1), 5.800001), math.radians(90.000001), math.radians(146.211058)), False)
sketch2.addGeometry(Part.LineSegment(Vector(98.644611, 118.455415, 0), Vector(82.447141, 94.249807, 0)), False)
sketch2.addGeometry(Part.LineSegment(Vector(82.447141, 94.249807, 0), Vector(67.45166, 118.417285, 0)), False)
sketch2.addGeometry(Part.ArcOfCircle(Part.Circle(Vector(66.262053, 117.679156, 0), Vector(0, 0, 1), 1.4), math.radians(31.818848), math.radians(146.581446)), False)
sketch2.addGeometry(Part.LineSegment(Vector(65.093516, 118.450207, 0), Vector(49.068514, 94.164111, 0)), False)
sketch2.addGeometry(Part.LineSegment(Vector(49.068514, 94.164111, 0), Vector(34.485614, 118.313682, 0)), False)
sketch2.addGeometry(Part.ArcOfCircle(Part.Circle(Vector(29.520628, 115.315541, 0), Vector(0, 0, 1), 5.799994), math.radians(31.125973), math.radians(90.000032)), False)
sketch2.addGeometry(Part.LineSegment(Vector(113.359052, 51.402792, 0), Vector(125.316835, 51.402792, 0)), False)
sketch2.addGeometry(Part.LineSegment(Vector(125.316835, 51.402792, 0), Vector(125.316835, 70.757158, 0)), False)
sketch2.addGeometry(Part.LineSegment(Vector(125.316835, 70.757158, 0), Vector(102.91875, 70.757158, 0)), False)
sketch2.addGeometry(Part.ArcOfCircle(Part.Circle(Vector(102.918748, 64.257162, 0), Vector(0, 0, 1), 6.499996), math.radians(89.999981), math.radians(145.232915)), False)
sketch2.addGeometry(Part.LineSegment(Vector(97.579151, 67.963731, 0), Vector(81.8499, 45.304554, 0)), False)
sketch2.addGeometry(Part.LineSegment(Vector(81.8499, 45.304554, 0), Vector(65.994707, 70.662869, 0)), False)
sketch2.addGeometry(Part.LineSegment(Vector(65.994707, 70.662869, 0), Vector(52.795318, 52.199101, 0)), False)
sketch2.addGeometry(Part.LineSegment(Vector(52.795318, 52.199101, 0), Vector(79.439663, 7.875723, 0)), False)
sketch2.addGeometry(Part.ArcOfCircle(Part.Circle(Vector(81.068083, 8.854624, 0), Vector(0, 0, 1), 1.9), math.radians(-148.988424), math.radians(-32.578306)), False)
sketch2.addGeometry(Part.LineSegment(Vector(82.66913, 7.831566, 0), Vector(108.977239, 49.002742, 0)), False)
sketch2.addGeometry(Part.ArcOfCircle(Part.Circle(Vector(113.359049, 46.202796, 0), Vector(0, 0, 1), 5.199996), math.radians(89.999969), math.radians(147.421708)), False)
sketch2.addConstraint(Sketcher.Constraint("Coincident", 0, 2, 1, 1))
sketch2.addConstraint(Sketcher.Constraint("Coincident", 1, 2, 2, 1))
sketch2.addConstraint(Sketcher.Constraint("Coincident", 2, 2, 3, 2))
sketch2.addConstraint(Sketcher.Constraint("Coincident", 3, 1, 4, 1))
sketch2.addConstraint(Sketcher.Constraint("Coincident", 4, 2, 5, 1))
sketch2.addConstraint(Sketcher.Constraint("Coincident", 5, 2, 6, 1))
sketch2.addConstraint(Sketcher.Constraint("Coincident", 6, 2, 7, 1))
sketch2.addConstraint(Sketcher.Constraint("Coincident", 7, 2, 8, 1))
sketch2.addConstraint(Sketcher.Constraint("Coincident", 8, 2, 9, 1))
sketch2.addConstraint(Sketcher.Constraint("Coincident", 9, 2, 10, 2))
sketch2.addConstraint(Sketcher.Constraint("Coincident", 10, 1, 11, 1))
sketch2.addConstraint(Sketcher.Constraint("Coincident", 11, 2, 12, 1))
sketch2.addConstraint(Sketcher.Constraint("Coincident", 12, 2, 13, 1))
sketch2.addConstraint(Sketcher.Constraint("Coincident", 13, 2, 14, 1))
sketch2.addConstraint(Sketcher.Constraint("Coincident", 14, 2, 15, 1))
sketch2.addConstraint(Sketcher.Constraint("Coincident", 15, 2, 16, 1))
sketch2.addConstraint(Sketcher.Constraint("Coincident", 16, 2, 17, 1))
sketch2.addConstraint(Sketcher.Constraint("Coincident", 17, 2, 18, 1))
sketch2.addConstraint(Sketcher.Constraint("Coincident", 18, 2, 19, 1))
sketch2.addConstraint(Sketcher.Constraint("Coincident", 19, 2, 20, 1))
sketch2.addConstraint(Sketcher.Constraint("Coincident", 20, 2, 0, 1))
sketch2.addConstraint(Sketcher.Constraint("Coincident", 21, 2, 22, 1))
sketch2.addConstraint(Sketcher.Constraint("Coincident", 22, 2, 23, 1))
sketch2.addConstraint(Sketcher.Constraint("Coincident", 23, 2, 24, 1))
sketch2.addConstraint(Sketcher.Constraint("Coincident", 24, 2, 25, 1))
sketch2.addConstraint(Sketcher.Constraint("Coincident", 25, 2, 26, 1))
sketch2.addConstraint(Sketcher.Constraint("Coincident", 26, 2, 27, 1))
sketch2.addConstraint(Sketcher.Constraint("Coincident", 27, 2, 28, 1))
sketch2.addConstraint(Sketcher.Constraint("Coincident", 28, 2, 29, 1))
sketch2.addConstraint(Sketcher.Constraint("Coincident", 29, 2, 30, 1))
sketch2.addConstraint(Sketcher.Constraint("Coincident", 30, 2, 31, 2))
sketch2.addConstraint(Sketcher.Constraint("Coincident", 31, 1, 21, 1))
sketch2.addConstraint(Sketcher.Constraint("Horizontal", 0))
sketch2.addConstraint(Sketcher.Constraint("Vertical", 1))
sketch2.addConstraint(Sketcher.Constraint("Horizontal", 2))
sketch2.addConstraint(Sketcher.Constraint("Horizontal", 11))
sketch2.addConstraint(Sketcher.Constraint("Vertical", 12))
sketch2.addConstraint(Sketcher.Constraint("Horizontal", 13))
sketch2.addConstraint(Sketcher.Constraint("Horizontal", 21))
sketch2.addConstraint(Sketcher.Constraint("Vertical", 22))
sketch2.addConstraint(Sketcher.Constraint("Horizontal", 23))
sketch2.addConstraint(Sketcher.Constraint("Radius", 5, 1.9))
sketch2.addConstraint(Sketcher.Constraint("Radius", 8, 1.9))
sketch2.addConstraint(Sketcher.Constraint("Radius", 10, 5.2))
sketch2.addConstraint(Sketcher.Constraint("Radius", 14, 5.800001))
sketch2.addConstraint(Sketcher.Constraint("Radius", 17, 1.4))
sketch2.addConstraint(Sketcher.Constraint("Radius", 29, 1.9))
sketch2.addConstraint(Sketcher.Constraint("DistanceX", -1, 1, 0, 2, 5.578))
sketch2.addConstraint(Sketcher.Constraint("Radius", 3, 5.199998))
sketch2.addConstraint(Sketcher.Constraint("Radius", 20, 5.799994))
sketch2.addConstraint(Sketcher.Constraint("Radius", 24, 6.499996))
sketch2.addConstraint(Sketcher.Constraint("Radius", 31, 5.199996))
sketch2.addConstraint(Sketcher.Constraint("DistanceY", 3, 1, 20, 3, 15.622))
sketch2.addConstraint(Sketcher.Constraint("DistanceX", 22, 2, 11, 2, 0.021))
sketch2.addConstraint(Sketcher.Constraint("DistanceY", 7, 2, 23, 2, 11.323))
sketch2.addConstraint(Sketcher.Constraint("DistanceX", 8, 3, 24, 2, 15.782001))
sketch2.addConstraint(Sketcher.Constraint("Distance", 30, 48.8588))
sketch2.addConstraint(Sketcher.Constraint("DistanceX", 11, 1, 11, 2, 12.235041))
sketch2.addConstraint(Sketcher.Constraint("DistanceX", 13, 2, 13, 1, 21.872891))
sketch2.addConstraint(Sketcher.Constraint("DistanceY", 1, 2, 1, 1, 18.93486))
sketch2.addConstraint(Sketcher.Constraint("DistanceX", -1, 1, 25, 2, 81.8499))
sketch2.addConstraint(Sketcher.Constraint("DistanceY", -1, 1, 27, 2, 52.199101))
sketch2.addConstraint(Sketcher.Constraint("DistanceX", 3, 3, 5, 3, 30.491101))
sketch2.addConstraint(Sketcher.Constraint("DistanceY", 5, 3, 3, 3, 36.251801))
sketch2.addConstraint(Sketcher.Constraint("DistanceY", 8, 3, 3, 3, 36.538698))
sketch2.addConstraint(Sketcher.Constraint("DistanceX", 24, 3, 31, 3, 10.440301))
sketch2.addConstraint(Sketcher.Constraint("DistanceX", 8, 3, 31, 3, 31.561899))
sketch2.addConstraint(Sketcher.Constraint("DistanceY", 31, 3, 10, 3, 50.7739))
sketch2.addConstraint(Sketcher.Constraint("DistanceX", 3, 1, 20, 3, 6.8599))
sketch2.addConstraint(Sketcher.Constraint("DistanceX", 6, 2, 9, 2, 42.416199))
sketch2.addConstraint(Sketcher.Constraint("DistanceY", 15, 2, 17, 2, 24.2004))
sketch2.addConstraint(Sketcher.Constraint("DistanceX", 19, 2, 18, 2, 14.5829))
sketch2.addConstraint(Sketcher.Constraint("DistanceX", 8, 3, 23, 2, 21.1216))
sketch2.addConstraint(Sketcher.Constraint("DistanceY", 26, 2, 6, 2, 10.993401))
sketch2.addConstraint(Sketcher.Constraint("DistanceY", 28, 2, 29, 3, 0.978901))
sketch2.addConstraint(Sketcher.Constraint("Distance", 9, 47.58591))
sketch2.addConstraint(Sketcher.Constraint("Distance", 16, 28.44172))
sketch2.addConstraint(Sketcher.Constraint("Distance", 18, 29.096652))
sketch2.addConstraint(Sketcher.Constraint("Distance", 19, 28.21104))
sketch2.addConstraint(Sketcher.Constraint("DistanceX", 0, 2, 0, 1, 23.942625))
sketch2.addConstraint(Sketcher.Constraint("DistanceX", 2, 1, 2, 2, 12.646473))
sketch2.addConstraint(Sketcher.Constraint("DistanceX", 21, 1, 21, 2, 11.957783))
sketch2.addConstraint(Sketcher.Constraint("DistanceX", 23, 2, 23, 1, 22.398085))
sketch2.addConstraint(Sketcher.Constraint("DistanceY", 12, 1, 12, 2, 18.853135))
sketch2.addConstraint(Sketcher.Constraint("DistanceY", 22, 1, 22, 2, 19.354366))
sketch2.addConstraint(Sketcher.Constraint("DistanceX", -1, 1, 8, 3, 81.79715))
sketch2.addConstraint(Sketcher.Constraint("DistanceY", -1, 1, 8, 3, 60.441979))
sketch2.addConstraint(Sketcher.Constraint("DistanceY", -1, 1, 14, 3, 115.22983))
sketch2.addConstraint(Sketcher.Constraint("DistanceX", -1, 1, 20, 3, 29.520628))
sketch2.addConstraint(Sketcher.Constraint("DistanceX", -1, 1, 5, 2, 50.252272))
sketch2.addConstraint(Sketcher.Constraint("DistanceY", -1, 1, 6, 2, 81.65627))
sketch2.addConstraint(Sketcher.Constraint("DistanceX", -1, 1, 9, 2, 108.698062))
sketch2.addConstraint(Sketcher.Constraint("DistanceY", -1, 1, 9, 2, 99.74045))
sketch2.addConstraint(Sketcher.Constraint("DistanceX", -1, 1, 14, 2, 98.644611))
sketch2.addConstraint(Sketcher.Constraint("DistanceX", -1, 1, 15, 2, 82.447141))
sketch2.addConstraint(Sketcher.Constraint("DistanceX", -1, 1, 16, 2, 67.45166))
sketch2.addConstraint(Sketcher.Constraint("DistanceY", -1, 1, 18, 2, 94.164111))
sketch2.addConstraint(Sketcher.Constraint("DistanceX", -1, 1, 27, 2, 52.795318))
sketch2.addConstraint(Sketcher.Constraint("DistanceX", -1, 1, 29, 2, 82.66913))
sketch2.addConstraint(Sketcher.Constraint("DistanceX", -1, 1, 30, 2, 108.977239))
sketch2.addConstraint(Sketcher.Constraint("DistanceX", 14, 3, 10, 3, 9.63785))
sketch2.addConstraint(Sketcher.Constraint("DistanceX", 17, 3, 14, 3, 37.202891))
sketch2.addConstraint(Sketcher.Constraint("DistanceX", 5, 3, 29, 3, 32.352508))
sketch2.addConstraint(Sketcher.Constraint("DistanceX", 4, 2, 5, 3, 1.620939))
sketch2.addConstraint(Sketcher.Constraint("DistanceY", 25, 2, 8, 2, 14.127592))
sketch2.addConstraint(Sketcher.Constraint("DistanceX", 26, 2, 7, 2, 14.191761))
sketch2.setExpression("Constraints[41]", "Params.sketch2_radius")
sketch2.setExpression("Constraints[42]", "Params.sketch2_radius2")
sketch2.setExpression("Constraints[43]", "Params.sketch2_radius3")
sketch2.setExpression("Constraints[44]", "Params.sketch2_radius4")
sketch2.setExpression("Constraints[45]", "Params.sketch2_radius5")
pad2 = body.newObject("PartDesign::Pad", "Pad001")
pad2.Profile = sketch2
pad2.setExpression("Length", "Params.pad2_length")

doc.recompute()
